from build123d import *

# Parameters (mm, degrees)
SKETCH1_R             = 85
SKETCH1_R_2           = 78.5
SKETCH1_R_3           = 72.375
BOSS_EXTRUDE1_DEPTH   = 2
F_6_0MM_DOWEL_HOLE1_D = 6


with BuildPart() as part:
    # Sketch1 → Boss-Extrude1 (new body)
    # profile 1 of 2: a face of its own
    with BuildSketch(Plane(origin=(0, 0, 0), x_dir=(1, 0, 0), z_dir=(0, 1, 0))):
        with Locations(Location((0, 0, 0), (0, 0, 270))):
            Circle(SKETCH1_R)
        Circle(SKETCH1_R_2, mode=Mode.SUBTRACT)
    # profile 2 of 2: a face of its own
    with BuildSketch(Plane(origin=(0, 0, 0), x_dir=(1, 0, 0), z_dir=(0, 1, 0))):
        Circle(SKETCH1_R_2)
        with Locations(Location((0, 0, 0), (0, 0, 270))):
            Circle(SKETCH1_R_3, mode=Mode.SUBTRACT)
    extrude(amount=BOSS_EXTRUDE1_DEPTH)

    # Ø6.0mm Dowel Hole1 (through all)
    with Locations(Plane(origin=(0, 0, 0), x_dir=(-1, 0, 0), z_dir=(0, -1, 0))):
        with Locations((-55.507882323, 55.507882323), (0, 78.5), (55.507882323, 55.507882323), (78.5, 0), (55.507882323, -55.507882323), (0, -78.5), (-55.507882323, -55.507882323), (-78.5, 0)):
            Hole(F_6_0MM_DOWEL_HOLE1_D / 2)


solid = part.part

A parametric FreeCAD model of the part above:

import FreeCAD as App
import Part
import Sketcher

V = App.Vector

doc = App.newDocument("Part")
body = doc.addObject("PartDesign::Body", "Body")

# Sketch on XZ plane
sketch1 = body.newObject("Sketcher::SketchObject", "Sketch")
sketch1.AttachmentSupport = (doc.getObject("XZ_Plane"), [""])
sketch1.MapMode = "FlatFace"
sketch1.addGeometry([
    Part.Circle(V(0, 0, 0), V(0, 0, 1), 85),
    Part.Circle(V(0, 0, 0), V(0, 0, 1), 72),
], False)
sketch1.addConstraint([
    Sketcher.Constraint("Coincident", 0, 3, -1, 1),
    Sketcher.Constraint("Coincident", 1, 3, -1, 1),
    Sketcher.Constraint("Diameter", 0, 170.0),
    Sketcher.Constraint("Diameter", 1, 144.75),
])
pad1 = body.newObject("PartDesign::Pad", "Pad")
pad1.Profile = sketch1
pad1.Length = 2
pad1.Reversed = True

# Sketch on XZ plane
sketch2 = body.newObject("Sketcher::SketchObject", "Sketch001")
sketch2.AttachmentSupport = (doc.getObject("XZ_Plane"), [""])
sketch2.MapMode = "FlatFace"
sketch2.addGeometry([
    Part.Circle(V(55.5, -55.5, 0), V(0, 0, 1), 3),  # 0
    Part.Circle(V(0, -78.5, 0), V(0, 0, 1), 3),  # 1
    Part.Circle(V(-55.5, -55.5, 0), V(0, 0, 1), 3),  # 2
    Part.Circle(V(-78.5, 0, 0), V(0, 0, 1), 3),  # 3
    Part.Circle(V(-55.5, 55.5, 0), V(0, 0, 1), 3),  # 4
    Part.Circle(V(0, 78.5, 0), V(0, 0, 1), 3),  # 5
    Part.Circle(V(55.5, 55.5, 0), V(0, 0, 1), 3),  # 6
    Part.Circle(V(78.5, 0, 0), V(0, 0, 1), 3),  # 7
], False)
sketch2.addConstraint([
    Sketcher.Constraint("Equal", 0, 1),
    Sketcher.Constraint("Equal", 1, 2),
    Sketcher.Constraint("Equal", 2, 3),
    Sketcher.Constraint("Equal", 3, 4),
    Sketcher.Constraint("Equal", 4, 5),
    Sketcher.Constraint("Equal", 5, 6),
    Sketcher.Constraint("Equal", 6, 7),
    Sketcher.Constraint("Symmetric", 0, 3, 4, 3, -1, 1),
    Sketcher.Constraint("Symmetric", 1, 3, 5, 3, -1, 1),
    Sketcher.Constraint("Symmetric", 2, 3, 6, 3, -1, 1),
    Sketcher.Constraint("Symmetric", 3, 3, 7, 3, -1, 1),
    Sketcher.Constraint("Symmetric", 0, 3, 2, 3, -2),
    Sketcher.Constraint("PointOnObject", 1, 3, -2),
    Sketcher.Constraint("PointOnObject", 3, 3, -1),
    Sketcher.Constraint("Diameter", 0, 6.0),
    Sketcher.Constraint("DistanceY", 1, 3, 5, 3, 157.0),
    Sketcher.Constraint("DistanceX", 3, 3, -1, 1, 78.5),
    Sketcher.Constraint("DistanceX", -1, 1, 0, 3, 55.507882),
    Sketcher.Constraint("DistanceY", 0, 3, -1, 1, 55.507882),
])
doc.recompute()
hole = body.newObject("PartDesign::Hole", "Hole")
hole.Profile = sketch2
hole.ThreadType = "None"
hole.Diameter = 6
hole.DepthType = "ThroughAll"

doc.recompute()
